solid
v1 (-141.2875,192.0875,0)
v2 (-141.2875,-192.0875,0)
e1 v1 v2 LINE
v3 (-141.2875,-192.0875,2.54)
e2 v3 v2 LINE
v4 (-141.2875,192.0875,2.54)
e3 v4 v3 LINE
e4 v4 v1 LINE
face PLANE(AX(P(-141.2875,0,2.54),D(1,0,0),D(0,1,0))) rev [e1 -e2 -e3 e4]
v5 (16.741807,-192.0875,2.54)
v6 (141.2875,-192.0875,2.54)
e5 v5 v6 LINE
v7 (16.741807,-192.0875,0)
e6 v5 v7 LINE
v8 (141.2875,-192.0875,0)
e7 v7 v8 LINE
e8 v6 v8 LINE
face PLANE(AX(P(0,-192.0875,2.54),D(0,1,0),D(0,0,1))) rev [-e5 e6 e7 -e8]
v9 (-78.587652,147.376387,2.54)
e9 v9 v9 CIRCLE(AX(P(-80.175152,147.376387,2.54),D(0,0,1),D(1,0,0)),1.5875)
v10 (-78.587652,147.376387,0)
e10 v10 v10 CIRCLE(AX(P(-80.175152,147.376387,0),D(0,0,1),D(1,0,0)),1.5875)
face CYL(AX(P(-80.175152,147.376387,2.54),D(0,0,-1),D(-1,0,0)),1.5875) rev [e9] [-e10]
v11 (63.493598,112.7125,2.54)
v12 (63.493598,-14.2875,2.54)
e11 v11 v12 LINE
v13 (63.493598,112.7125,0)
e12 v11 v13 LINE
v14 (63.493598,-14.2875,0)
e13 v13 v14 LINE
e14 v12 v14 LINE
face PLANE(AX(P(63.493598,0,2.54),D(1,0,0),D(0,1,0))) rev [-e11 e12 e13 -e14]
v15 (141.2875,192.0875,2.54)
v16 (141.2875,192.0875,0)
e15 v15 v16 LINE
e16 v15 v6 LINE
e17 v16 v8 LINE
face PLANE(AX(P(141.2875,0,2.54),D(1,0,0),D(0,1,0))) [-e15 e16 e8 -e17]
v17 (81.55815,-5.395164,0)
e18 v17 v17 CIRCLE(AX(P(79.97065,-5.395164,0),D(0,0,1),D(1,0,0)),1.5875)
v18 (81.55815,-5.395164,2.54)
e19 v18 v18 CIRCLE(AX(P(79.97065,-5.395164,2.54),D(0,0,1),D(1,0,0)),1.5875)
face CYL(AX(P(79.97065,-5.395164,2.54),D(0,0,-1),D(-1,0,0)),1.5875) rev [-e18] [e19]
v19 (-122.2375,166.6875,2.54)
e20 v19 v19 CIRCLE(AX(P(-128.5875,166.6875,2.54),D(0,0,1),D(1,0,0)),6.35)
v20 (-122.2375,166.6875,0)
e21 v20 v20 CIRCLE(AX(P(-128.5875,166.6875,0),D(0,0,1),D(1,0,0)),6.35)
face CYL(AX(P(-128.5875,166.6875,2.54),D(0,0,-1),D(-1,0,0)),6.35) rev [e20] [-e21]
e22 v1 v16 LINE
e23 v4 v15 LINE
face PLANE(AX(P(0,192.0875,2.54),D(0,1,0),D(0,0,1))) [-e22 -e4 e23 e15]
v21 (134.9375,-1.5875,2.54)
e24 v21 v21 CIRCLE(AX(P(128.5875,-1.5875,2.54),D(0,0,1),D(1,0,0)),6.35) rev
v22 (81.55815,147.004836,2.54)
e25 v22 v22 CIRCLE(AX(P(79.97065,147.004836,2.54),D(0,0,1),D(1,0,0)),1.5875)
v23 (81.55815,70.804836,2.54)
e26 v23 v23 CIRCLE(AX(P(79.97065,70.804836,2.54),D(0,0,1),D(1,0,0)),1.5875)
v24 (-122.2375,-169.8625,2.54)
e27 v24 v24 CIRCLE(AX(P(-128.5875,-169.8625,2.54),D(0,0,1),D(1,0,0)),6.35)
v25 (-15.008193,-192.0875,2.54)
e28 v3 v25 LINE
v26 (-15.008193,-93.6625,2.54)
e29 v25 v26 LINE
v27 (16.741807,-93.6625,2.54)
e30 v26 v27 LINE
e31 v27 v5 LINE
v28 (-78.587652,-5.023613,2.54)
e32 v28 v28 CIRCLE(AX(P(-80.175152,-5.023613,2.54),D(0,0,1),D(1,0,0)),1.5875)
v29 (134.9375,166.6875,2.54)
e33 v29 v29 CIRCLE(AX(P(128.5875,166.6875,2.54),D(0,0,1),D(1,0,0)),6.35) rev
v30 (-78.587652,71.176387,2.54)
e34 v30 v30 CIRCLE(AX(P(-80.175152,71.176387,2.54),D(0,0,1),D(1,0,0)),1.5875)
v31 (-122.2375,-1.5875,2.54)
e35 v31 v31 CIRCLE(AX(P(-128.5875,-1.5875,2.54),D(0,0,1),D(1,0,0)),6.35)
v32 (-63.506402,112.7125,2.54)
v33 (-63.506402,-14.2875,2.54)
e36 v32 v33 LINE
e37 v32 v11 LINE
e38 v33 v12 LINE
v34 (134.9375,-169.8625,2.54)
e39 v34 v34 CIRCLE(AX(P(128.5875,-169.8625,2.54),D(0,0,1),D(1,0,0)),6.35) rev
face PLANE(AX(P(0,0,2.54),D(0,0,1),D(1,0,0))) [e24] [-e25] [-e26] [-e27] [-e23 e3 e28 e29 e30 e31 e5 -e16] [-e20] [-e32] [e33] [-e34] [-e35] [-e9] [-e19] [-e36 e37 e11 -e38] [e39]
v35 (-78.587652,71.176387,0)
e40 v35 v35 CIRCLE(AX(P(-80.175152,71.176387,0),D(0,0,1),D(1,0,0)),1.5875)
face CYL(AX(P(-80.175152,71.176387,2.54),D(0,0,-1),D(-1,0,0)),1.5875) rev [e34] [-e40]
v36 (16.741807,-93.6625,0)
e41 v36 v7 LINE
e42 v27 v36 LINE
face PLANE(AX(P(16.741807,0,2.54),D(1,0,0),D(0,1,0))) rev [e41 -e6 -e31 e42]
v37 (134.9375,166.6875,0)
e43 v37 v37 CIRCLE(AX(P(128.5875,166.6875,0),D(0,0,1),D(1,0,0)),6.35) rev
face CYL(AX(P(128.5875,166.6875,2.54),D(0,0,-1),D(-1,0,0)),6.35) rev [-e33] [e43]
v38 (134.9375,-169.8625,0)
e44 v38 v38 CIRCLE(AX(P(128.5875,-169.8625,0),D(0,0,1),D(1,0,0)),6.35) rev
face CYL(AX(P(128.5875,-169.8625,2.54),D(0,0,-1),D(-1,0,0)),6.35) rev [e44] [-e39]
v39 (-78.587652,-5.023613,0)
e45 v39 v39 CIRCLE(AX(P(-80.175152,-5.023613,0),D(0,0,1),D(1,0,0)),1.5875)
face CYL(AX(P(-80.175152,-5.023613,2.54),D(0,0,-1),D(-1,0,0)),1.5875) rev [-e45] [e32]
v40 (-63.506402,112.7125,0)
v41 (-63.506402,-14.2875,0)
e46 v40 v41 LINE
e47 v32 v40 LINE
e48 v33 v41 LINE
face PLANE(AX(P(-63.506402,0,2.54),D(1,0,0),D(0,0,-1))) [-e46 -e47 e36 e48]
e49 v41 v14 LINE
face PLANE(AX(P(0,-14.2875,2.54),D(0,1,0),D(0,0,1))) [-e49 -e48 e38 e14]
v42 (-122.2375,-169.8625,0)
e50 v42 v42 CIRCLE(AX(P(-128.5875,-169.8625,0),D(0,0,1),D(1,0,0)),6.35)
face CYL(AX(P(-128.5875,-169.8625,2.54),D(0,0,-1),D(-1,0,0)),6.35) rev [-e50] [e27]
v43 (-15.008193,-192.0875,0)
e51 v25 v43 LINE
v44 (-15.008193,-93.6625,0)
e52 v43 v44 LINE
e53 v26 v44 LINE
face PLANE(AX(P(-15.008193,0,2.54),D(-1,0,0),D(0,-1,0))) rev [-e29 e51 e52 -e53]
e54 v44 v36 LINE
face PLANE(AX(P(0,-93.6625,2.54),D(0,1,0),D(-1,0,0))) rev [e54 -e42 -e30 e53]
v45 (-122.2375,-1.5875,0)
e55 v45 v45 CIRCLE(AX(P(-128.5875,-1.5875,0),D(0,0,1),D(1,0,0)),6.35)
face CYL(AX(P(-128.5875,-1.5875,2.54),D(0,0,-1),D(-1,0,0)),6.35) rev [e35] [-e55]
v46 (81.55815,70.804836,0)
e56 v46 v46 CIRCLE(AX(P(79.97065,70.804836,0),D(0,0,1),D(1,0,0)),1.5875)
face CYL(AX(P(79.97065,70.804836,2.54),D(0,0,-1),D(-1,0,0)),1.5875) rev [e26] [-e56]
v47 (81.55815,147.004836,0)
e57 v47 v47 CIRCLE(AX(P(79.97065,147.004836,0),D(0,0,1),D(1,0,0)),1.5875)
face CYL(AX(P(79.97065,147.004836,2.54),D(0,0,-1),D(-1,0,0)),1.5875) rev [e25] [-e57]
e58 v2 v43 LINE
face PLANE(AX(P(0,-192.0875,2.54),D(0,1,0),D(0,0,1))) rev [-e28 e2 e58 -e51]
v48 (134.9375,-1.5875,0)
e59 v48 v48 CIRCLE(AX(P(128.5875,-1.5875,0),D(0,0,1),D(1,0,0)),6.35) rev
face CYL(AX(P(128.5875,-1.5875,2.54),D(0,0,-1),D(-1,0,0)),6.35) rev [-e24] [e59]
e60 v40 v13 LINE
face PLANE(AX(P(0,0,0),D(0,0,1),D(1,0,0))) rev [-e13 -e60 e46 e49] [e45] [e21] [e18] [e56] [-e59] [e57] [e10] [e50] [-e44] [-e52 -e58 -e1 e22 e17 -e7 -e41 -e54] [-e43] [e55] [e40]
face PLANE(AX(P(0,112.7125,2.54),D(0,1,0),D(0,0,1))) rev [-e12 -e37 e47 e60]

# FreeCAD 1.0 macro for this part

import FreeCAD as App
import Part
import Sketcher

V = App.Vector
Q = App.Units.Quantity

doc = App.newDocument("Part")
body = doc.addObject("PartDesign::Body", "Body")

# Sketch on XY plane
sketch1 = body.newObject("Sketcher::SketchObject", "Sketch")
sketch1.AttachmentSupport = (doc.getObject("XY_Plane"), [""])
sketch1.MapMode = "FlatFace"
sketch1.addGeometry([
    Part.LineSegment(V(141.3, 192.1, 0), V(-141.3, 192.1, 0)),  # 0
    Part.LineSegment(V(-141.3, 192.1, 0), V(-141.3, -192.1, 0)),  # 1
    Part.LineSegment(V(-141.3, -192.1, 0), V(-15, -192.1, 0)),  # 2
    Part.LineSegment(V(-15, -192.1, 0), V(-15, -93.7, 0)),  # 3
    Part.LineSegment(V(-15, -93.7, 0), V(16.7, -93.7, 0)),  # 4
    Part.LineSegment(V(16.7, -93.7, 0), V(16.7, -192.1, 0)),  # 5
    Part.LineSegment(V(16.7, -192.1, 0), V(141.3, -192.1, 0)),  # 6
    Part.LineSegment(V(141.3, -192.1, 0), V(141.3, 192.1, 0)),  # 7
    Part.Circle(V(-128.6, -169.9, 0), V(0, 0, 1), 6.3),  # 8
    Part.Circle(V(-80.2, -5, 0), V(0, 0, 1), 1.6),  # 9
    Part.Circle(V(128.6, -169.9, 0), V(0, 0, 1), 6.3),  # 10
    Part.Circle(V(80, -5.4, 0), V(0, 0, 1), 1.6),  # 11
    Part.Circle(V(-128.6, -1.6, 0), V(0, 0, 1), 6.3),  # 12
    Part.Circle(V(-80.2, 71.2, 0), V(0, 0, 1), 1.6),  # 13
    Part.LineSegment(V(63.5, -14.3, 0), V(-63.5, -14.3, 0)),  # 14
    Part.LineSegment(V(-63.5, -14.3, 0), V(-63.5, 112.7, 0)),  # 15
    Part.LineSegment(V(-63.5, 112.7, 0), V(63.5, 112.7, 0)),  # 16
    Part.LineSegment(V(63.5, 112.7, 0), V(63.5, -14.3, 0)),  # 17
    Part.Circle(V(-128.6, 166.7, 0), V(0, 0, 1), 6.3),  # 18
    Part.Circle(V(-80.2, 147.4, 0), V(0, 0, 1), 1.6),  # 19
    Part.Circle(V(128.6, -1.6, 0), V(0, 0, 1), 6.3),  # 20
    Part.Circle(V(80, 70.8, 0), V(0, 0, 1), 1.6),  # 21
    Part.Circle(V(80, 147, 0), V(0, 0, 1), 1.6),  # 22
    Part.Circle(V(128.6, 166.7, 0), V(0, 0, 1), 6.3),  # 23
], False)
sketch1.addConstraint([
    Sketcher.Constraint("Coincident", 0, 2, 1, 1),
    Sketcher.Constraint("Coincident", 1, 2, 2, 1),
    Sketcher.Constraint("Coincident", 2, 2, 3, 1),
    Sketcher.Constraint("Coincident", 3, 2, 4, 1),
    Sketcher.Constraint("Coincident", 4, 2, 5, 1),
    Sketcher.Constraint("Coincident", 5, 2, 6, 1),
    Sketcher.Constraint("Coincident", 6, 2, 7, 1),
    Sketcher.Constraint("Coincident", 7, 2, 0, 1),
    Sketcher.Constraint("Coincident", 14, 2, 15, 1),
    Sketcher.Constraint("Coincident", 15, 2, 16, 1),
    Sketcher.Constraint("Coincident", 16, 2, 17, 1),
    Sketcher.Constraint("Coincident", 17, 2, 14, 1),
    Sketcher.Constraint("Horizontal", 0),
    Sketcher.Constraint("Vertical", 1),
    Sketcher.Constraint("Horizontal", 2),
    Sketcher.Constraint("Vertical", 3),
    Sketcher.Constraint("Horizontal", 4),
    Sketcher.Constraint("Vertical", 5),
    Sketcher.Constraint("Horizontal", 6),
    Sketcher.Constraint("Vertical", 7),
    Sketcher.Constraint("Horizontal", 14),
    Sketcher.Constraint("Vertical", 15),
    Sketcher.Constraint("Horizontal", 16),
    Sketcher.Constraint("Vertical", 17),
    Sketcher.Constraint("Equal", 8, 10),
    Sketcher.Constraint("Equal", 9, 11),
    Sketcher.Constraint("Equal", 10, 12),
    Sketcher.Constraint("Equal", 11, 13),
    Sketcher.Constraint("Equal", 12, 18),
    Sketcher.Constraint("Equal", 13, 19),
    Sketcher.Constraint("Equal", 18, 20),
    Sketcher.Constraint("Equal", 19, 21),
    Sketcher.Constraint("Equal", 21, 22),
    Sketcher.Constraint("Equal", 20, 23),
    Sketcher.Constraint("Symmetric", 0, 2, 6, 2, -1, 1),
    Sketcher.Constraint("Symmetric", 8, 3, 10, 3, -2),
    Sketcher.Constraint("Symmetric", 12, 3, 20, 3, -2),
    Sketcher.Constraint("Symmetric", 18, 3, 23, 3, -2),
    Sketcher.Constraint("Horizontal", 2, 2, 5, 2),
    Sketcher.Constraint("Vertical", 8, 3, 12, 3),
    Sketcher.Constraint("Vertical", 9, 3, 13, 3),
    Sketcher.Constraint("Vertical", 12, 3, 18, 3),
    Sketcher.Constraint("Vertical", 13, 3, 19, 3),
    Sketcher.Constraint("Vertical", 11, 3, 21, 3),
    Sketcher.Constraint("Vertical", 21, 3, 22, 3),
    Sketcher.Constraint("Equal", 16, 15),
    Sketcher.Constraint("Diameter", 8, Q("0.5 in")),
    Sketcher.Constraint("DistanceX", 14, 2, 14, 1, Q("5 in")),
    Sketcher.Constraint("Diameter", 9, Q("0.125 in")),
    Sketcher.Constraint("DistanceY", 9, 3, 13, 3, Q("3 in")),
    Sketcher.Constraint("DistanceY", 13, 3, 19, 3, Q("3 in")),
    Sketcher.Constraint("DistanceY", 11, 3, 21, 3, Q("3 in")),
    Sketcher.Constraint("DistanceY", 21, 3, 22, 3, Q("3 in")),
    Sketcher.Constraint("DistanceY", 18, 3, 0, 2, Q("1 in")),
    Sketcher.Constraint("DistanceY", 8, 3, 3, 2, Q("3 in")),
    Sketcher.Constraint("DistanceX", 4, 1, 4, 2, Q("1.25 in")),
    Sketcher.Constraint("DistanceX", 0, 2, 18, 3, Q("0.5 in")),
    Sketcher.Constraint("DistanceY", 1, 2, 12, 3, Q("7.5 in")),
    Sketcher.Constraint("DistanceY", 14, 2, 12, 3, Q("0.5 in")),
    Sketcher.Constraint("DistanceX", 0, 2, 0, 1, Q("11.125 in")),
    Sketcher.Constraint("DistanceY", 1, 2, 1, 1, Q("15.125 in")),
    Sketcher.Constraint("DistanceY", 3, 1, 3, 2, Q("3.875 in")),
    Sketcher.Constraint("DistanceX", 9, 3, 14, 2, Q("0.65625 in")),
    Sketcher.Constraint("DistanceX", 2, 1, 2, 2, 126.279307),
    Sketcher.Constraint("DistanceX", -1, 1, 11, 3, 79.97065),
    Sketcher.Constraint("DistanceY", 11, 3, 9, 3, 0.371551),
    Sketcher.Constraint("DistanceX", 9, 3, 2, 2, 65.166959),
    Sketcher.Constraint("DistanceY", 9, 3, -1, 1, 5.023613),
])
pad1 = body.newObject("PartDesign::Pad", "Pad")
pad1.Profile = sketch1
pad1.Length = Q("0.1 in")

doc.recompute()
